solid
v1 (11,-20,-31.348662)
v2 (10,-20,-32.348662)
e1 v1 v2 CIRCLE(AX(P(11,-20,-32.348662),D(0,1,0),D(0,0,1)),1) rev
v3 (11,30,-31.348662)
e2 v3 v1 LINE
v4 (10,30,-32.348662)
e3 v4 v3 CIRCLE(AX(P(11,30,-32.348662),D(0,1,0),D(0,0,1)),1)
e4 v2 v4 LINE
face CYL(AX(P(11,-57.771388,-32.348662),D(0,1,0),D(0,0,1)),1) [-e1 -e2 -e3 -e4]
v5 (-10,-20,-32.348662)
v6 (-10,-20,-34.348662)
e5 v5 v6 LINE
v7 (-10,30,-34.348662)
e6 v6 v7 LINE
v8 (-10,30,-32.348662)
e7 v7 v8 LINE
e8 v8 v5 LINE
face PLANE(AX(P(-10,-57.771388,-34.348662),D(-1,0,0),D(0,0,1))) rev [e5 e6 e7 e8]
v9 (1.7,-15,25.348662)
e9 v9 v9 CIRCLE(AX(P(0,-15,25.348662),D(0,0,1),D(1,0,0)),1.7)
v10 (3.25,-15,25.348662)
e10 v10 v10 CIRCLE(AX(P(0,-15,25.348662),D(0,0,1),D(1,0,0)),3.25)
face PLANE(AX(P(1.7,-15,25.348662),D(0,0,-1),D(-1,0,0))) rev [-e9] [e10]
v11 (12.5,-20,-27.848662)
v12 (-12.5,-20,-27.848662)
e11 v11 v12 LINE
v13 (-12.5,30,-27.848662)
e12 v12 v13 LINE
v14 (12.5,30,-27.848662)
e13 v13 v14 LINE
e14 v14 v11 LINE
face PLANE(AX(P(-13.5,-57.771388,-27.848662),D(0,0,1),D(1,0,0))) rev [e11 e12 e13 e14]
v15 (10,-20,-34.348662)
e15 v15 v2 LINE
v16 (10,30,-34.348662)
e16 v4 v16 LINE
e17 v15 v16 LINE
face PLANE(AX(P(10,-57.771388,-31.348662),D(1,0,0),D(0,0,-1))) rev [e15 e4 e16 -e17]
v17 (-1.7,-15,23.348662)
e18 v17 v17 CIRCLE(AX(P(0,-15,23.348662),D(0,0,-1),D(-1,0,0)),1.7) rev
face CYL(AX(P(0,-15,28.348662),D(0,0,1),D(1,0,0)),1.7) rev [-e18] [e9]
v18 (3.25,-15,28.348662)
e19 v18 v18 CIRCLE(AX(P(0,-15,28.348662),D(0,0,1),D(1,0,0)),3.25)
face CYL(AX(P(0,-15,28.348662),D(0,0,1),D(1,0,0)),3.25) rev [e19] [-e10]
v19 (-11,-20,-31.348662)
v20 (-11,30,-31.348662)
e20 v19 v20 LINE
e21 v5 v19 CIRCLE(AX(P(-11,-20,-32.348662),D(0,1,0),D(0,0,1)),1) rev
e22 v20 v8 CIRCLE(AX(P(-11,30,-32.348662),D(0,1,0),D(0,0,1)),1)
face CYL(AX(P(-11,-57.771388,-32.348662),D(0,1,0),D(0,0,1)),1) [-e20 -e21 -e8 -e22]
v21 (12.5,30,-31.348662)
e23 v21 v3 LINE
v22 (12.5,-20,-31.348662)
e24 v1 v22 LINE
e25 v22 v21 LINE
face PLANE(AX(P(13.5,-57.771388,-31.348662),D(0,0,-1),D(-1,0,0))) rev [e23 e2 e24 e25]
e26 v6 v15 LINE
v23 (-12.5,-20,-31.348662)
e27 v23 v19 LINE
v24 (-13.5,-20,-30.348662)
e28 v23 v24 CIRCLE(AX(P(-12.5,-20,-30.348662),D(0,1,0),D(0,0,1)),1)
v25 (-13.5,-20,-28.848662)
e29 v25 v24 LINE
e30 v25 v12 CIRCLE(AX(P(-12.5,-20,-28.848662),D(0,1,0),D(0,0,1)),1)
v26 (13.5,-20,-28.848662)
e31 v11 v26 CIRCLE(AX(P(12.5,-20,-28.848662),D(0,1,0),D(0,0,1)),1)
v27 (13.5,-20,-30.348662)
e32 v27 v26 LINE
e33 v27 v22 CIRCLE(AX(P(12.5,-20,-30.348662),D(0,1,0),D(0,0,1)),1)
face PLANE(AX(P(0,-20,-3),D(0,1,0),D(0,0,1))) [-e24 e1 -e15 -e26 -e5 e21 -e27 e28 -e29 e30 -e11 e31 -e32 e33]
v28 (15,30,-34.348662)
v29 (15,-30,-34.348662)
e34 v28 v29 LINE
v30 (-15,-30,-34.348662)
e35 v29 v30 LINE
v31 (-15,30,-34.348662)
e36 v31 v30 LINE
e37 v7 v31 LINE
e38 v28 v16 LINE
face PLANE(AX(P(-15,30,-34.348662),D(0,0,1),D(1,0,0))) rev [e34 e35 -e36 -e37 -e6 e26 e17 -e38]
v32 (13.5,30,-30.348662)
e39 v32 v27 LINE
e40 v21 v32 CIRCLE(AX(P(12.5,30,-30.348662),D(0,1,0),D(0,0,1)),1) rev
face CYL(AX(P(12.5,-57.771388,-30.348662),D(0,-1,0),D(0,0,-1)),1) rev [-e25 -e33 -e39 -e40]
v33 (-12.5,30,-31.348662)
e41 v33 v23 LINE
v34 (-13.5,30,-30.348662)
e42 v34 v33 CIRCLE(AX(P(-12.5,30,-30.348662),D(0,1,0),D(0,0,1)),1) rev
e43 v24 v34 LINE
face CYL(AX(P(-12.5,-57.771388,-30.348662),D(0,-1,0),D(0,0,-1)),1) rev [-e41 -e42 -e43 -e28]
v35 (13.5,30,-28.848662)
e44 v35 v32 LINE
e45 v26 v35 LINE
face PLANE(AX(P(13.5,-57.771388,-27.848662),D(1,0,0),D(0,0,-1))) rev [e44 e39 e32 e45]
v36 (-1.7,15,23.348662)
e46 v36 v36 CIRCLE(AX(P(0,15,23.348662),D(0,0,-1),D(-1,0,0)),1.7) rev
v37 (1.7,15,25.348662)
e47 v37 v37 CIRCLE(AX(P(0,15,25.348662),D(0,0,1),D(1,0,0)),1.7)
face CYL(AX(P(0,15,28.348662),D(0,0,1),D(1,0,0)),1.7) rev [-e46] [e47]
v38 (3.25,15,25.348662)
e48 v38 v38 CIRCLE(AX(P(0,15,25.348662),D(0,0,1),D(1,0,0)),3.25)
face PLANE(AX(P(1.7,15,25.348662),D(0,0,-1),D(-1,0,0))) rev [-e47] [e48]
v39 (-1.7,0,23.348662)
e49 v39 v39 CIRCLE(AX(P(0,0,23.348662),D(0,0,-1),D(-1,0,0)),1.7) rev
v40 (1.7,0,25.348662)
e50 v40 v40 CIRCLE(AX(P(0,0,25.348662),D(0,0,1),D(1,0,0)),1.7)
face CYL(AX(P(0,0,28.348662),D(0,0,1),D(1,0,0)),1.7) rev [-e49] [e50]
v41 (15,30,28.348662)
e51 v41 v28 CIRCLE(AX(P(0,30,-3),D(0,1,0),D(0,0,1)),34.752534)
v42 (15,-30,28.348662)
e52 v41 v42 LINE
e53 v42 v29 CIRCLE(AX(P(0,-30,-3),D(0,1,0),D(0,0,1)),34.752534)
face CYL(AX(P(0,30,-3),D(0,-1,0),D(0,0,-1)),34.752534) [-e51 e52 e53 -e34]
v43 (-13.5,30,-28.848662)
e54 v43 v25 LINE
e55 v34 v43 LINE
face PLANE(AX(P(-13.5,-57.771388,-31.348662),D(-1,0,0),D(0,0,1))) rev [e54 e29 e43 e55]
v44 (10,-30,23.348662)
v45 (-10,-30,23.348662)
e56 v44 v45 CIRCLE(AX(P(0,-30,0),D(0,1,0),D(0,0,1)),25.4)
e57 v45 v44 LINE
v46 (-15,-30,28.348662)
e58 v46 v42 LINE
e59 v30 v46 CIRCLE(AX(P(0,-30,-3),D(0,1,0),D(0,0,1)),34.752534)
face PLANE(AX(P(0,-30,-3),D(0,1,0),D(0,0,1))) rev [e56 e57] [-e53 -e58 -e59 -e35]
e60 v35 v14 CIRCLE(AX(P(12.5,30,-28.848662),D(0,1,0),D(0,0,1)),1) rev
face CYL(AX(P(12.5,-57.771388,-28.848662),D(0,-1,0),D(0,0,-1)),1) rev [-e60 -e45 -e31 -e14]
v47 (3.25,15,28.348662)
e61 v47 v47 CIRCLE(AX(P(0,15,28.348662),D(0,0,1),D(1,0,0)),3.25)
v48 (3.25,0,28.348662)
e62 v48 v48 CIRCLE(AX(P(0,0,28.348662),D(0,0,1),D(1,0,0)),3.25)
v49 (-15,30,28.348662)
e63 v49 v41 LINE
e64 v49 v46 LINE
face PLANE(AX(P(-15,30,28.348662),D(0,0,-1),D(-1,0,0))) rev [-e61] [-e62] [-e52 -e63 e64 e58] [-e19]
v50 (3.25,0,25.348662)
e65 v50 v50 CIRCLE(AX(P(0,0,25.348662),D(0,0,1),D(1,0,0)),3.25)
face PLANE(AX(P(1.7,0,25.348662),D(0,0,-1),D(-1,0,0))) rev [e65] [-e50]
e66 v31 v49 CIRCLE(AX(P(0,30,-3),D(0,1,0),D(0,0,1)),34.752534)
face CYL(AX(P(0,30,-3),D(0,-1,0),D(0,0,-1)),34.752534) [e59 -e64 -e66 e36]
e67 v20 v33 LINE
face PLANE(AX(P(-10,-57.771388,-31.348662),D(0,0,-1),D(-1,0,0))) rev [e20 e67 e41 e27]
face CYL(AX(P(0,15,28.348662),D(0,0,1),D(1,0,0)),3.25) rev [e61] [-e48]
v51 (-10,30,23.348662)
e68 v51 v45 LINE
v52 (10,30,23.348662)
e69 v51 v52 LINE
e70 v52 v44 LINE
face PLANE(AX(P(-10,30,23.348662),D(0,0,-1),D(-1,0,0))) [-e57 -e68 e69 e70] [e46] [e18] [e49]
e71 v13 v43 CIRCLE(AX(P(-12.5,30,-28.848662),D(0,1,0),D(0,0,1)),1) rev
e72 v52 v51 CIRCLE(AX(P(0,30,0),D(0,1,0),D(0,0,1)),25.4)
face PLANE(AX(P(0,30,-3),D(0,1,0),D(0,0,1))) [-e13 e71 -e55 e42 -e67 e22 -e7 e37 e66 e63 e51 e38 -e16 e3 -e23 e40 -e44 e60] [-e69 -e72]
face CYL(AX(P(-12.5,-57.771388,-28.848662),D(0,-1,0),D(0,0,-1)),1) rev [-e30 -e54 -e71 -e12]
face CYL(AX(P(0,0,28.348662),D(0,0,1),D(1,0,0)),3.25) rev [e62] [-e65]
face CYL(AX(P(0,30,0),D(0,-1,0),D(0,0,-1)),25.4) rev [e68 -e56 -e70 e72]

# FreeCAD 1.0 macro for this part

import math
import FreeCAD as App
import Part
import Sketcher
from FreeCAD import Vector
Q = App.Units.Quantity


def edges_at(feature, points):
    """Names of the edges that pass closest to the given points."""
    edges = feature.Shape.Edges
    near = lambda p: min(range(len(edges)), key=lambda i: edges[i].distToShape(Part.Vertex(*p))[0])
    return sorted({f"Edge{near(p) + 1}" for p in points})

doc = App.newDocument("Part")
body = doc.addObject("PartDesign::Body", "Body")

sketch1 = body.newObject("Sketcher::SketchObject", "Sketch")
sketch1.AttachmentSupport = (doc.getObject("XZ_Plane"), [""])
sketch1.MapMode = "FlatFace"
sketch1.addGeometry(Part.LineSegment(Vector(-15, 28, 0), Vector(15, 28, 0)), False)
sketch1.addGeometry(Part.ArcOfCircle(Part.Circle(Vector(0, -3, 0), Vector(0, 0, 1), 35), math.radians(-64), math.radians(64)), False)
sketch1.addGeometry(Part.LineSegment(Vector(15, -34, 0), Vector(-15, -34, 0)), False)
sketch1.addGeometry(Part.ArcOfCircle(Part.Circle(Vector(0, -3, 0), Vector(0, 0, 1), 35), math.radians(116), math.radians(244)), False)
sketch1.addGeometry(Part.LineSegment(Vector(10, 23, 0), Vector(-10, 23, 0)), False)
sketch1.addGeometry(Part.ArcOfCircle(Part.Circle(Vector(0, 0, 0), Vector(0, 0, 1), 25), math.radians(113), math.radians(427)), False)
sketch1.addConstraint(Sketcher.Constraint("Coincident", 0, 2, 1, 2))
sketch1.addConstraint(Sketcher.Constraint("Coincident", 1, 1, 2, 1))
sketch1.addConstraint(Sketcher.Constraint("Coincident", 2, 2, 3, 2))
sketch1.addConstraint(Sketcher.Constraint("Coincident", 3, 1, 0, 1))
sketch1.addConstraint(Sketcher.Constraint("Coincident", 4, 1, 5, 2))
sketch1.addConstraint(Sketcher.Constraint("Coincident", 5, 1, 4, 2))
sketch1.addConstraint(Sketcher.Constraint("Horizontal", 0))
sketch1.addConstraint(Sketcher.Constraint("Horizontal", 2))
sketch1.addConstraint(Sketcher.Constraint("Horizontal", 4))
sketch1.addConstraint(Sketcher.Constraint("Coincident", 5, 3, -1, 1))
sketch1.addConstraint(Sketcher.Constraint("Coincident", 3, 3, 1, 3))
sketch1.addConstraint(Sketcher.Constraint("Equal", 1, 3))
sketch1.addConstraint(Sketcher.Constraint("PointOnObject", 1, 3, -2))
sketch1.addConstraint(Sketcher.Constraint("Vertical", 0, 2, 1, 1))
sketch1.addConstraint(Sketcher.Constraint("Radius", 5, Q("25.4 mm")))
sketch1.addConstraint(Sketcher.Constraint("DistanceX", 0, 1, 0, 2, Q("30 mm")))
sketch1.addConstraint(Sketcher.Constraint("DistanceX", 4, 2, 4, 1, Q("20 mm")))
sketch1.addConstraint(Sketcher.Constraint("DistanceY", 1, 3, -1, 1, Q("3 mm")))
sketch1.addConstraint(Sketcher.Constraint("DistanceY", 4, 1, 0, 2, Q("5 mm")))
pad1 = body.newObject("PartDesign::Pad", "Pad")
pad1.Profile = sketch1
pad1.Length = 60
pad1.Midplane = True

sketch2 = body.newObject("Sketcher::SketchObject", "Sketch001")
sketch2.AttachmentSupport = (doc.getObject("XZ_Plane"), [""])
sketch2.MapMode = "FlatFace"
sketch2.AttachmentOffset = App.Placement(Vector(0, 0, -30), App.Rotation())
sketch2.addGeometry(Part.LineSegment(Vector(-10, -34.3, 0), Vector(-10, -31.3, 0)), False)
sketch2.addGeometry(Part.LineSegment(Vector(-10, -31.3, 0), Vector(-13.5, -31.3, 0)), False)
sketch2.addGeometry(Part.LineSegment(Vector(-13.5, -31.3, 0), Vector(-13.5, -27.8, 0)), False)
sketch2.addGeometry(Part.LineSegment(Vector(-13.5, -27.8, 0), Vector(13.5, -27.8, 0)), False)
sketch2.addGeometry(Part.LineSegment(Vector(13.5, -27.8, 0), Vector(13.5, -31.3, 0)), False)
sketch2.addGeometry(Part.LineSegment(Vector(13.5, -31.3, 0), Vector(10, -31.3, 0)), False)
sketch2.addGeometry(Part.LineSegment(Vector(10, -31.3, 0), Vector(10, -34.3, 0)), False)
sketch2.addGeometry(Part.LineSegment(Vector(10, -34.3, 0), Vector(-10, -34.3, 0)), False)
sketch2.addConstraint(Sketcher.Constraint("Coincident", 0, 2, 1, 1))
sketch2.addConstraint(Sketcher.Constraint("Coincident", 1, 2, 2, 1))
sketch2.addConstraint(Sketcher.Constraint("Coincident", 2, 2, 3, 1))
sketch2.addConstraint(Sketcher.Constraint("Coincident", 3, 2, 4, 1))
sketch2.addConstraint(Sketcher.Constraint("Coincident", 4, 2, 5, 1))
sketch2.addConstraint(Sketcher.Constraint("Coincident", 5, 2, 6, 1))
sketch2.addConstraint(Sketcher.Constraint("Coincident", 6, 2, 7, 1))
sketch2.addConstraint(Sketcher.Constraint("Coincident", 7, 2, 0, 1))
sketch2.addConstraint(Sketcher.Constraint("Vertical", 0))
sketch2.addConstraint(Sketcher.Constraint("Horizontal", 1))
sketch2.addConstraint(Sketcher.Constraint("Vertical", 2))
sketch2.addConstraint(Sketcher.Constraint("Horizontal", 3))
sketch2.addConstraint(Sketcher.Constraint("Vertical", 4))
sketch2.addConstraint(Sketcher.Constraint("Horizontal", 5))
sketch2.addConstraint(Sketcher.Constraint("Vertical", 6))
sketch2.addConstraint(Sketcher.Constraint("Horizontal", 7))
sketch2.addConstraint(Sketcher.Constraint("Symmetric", 1, 2, 4, 2, -2))
sketch2.addConstraint(Sketcher.Constraint("Equal", 1, 5))
sketch2.addConstraint(Sketcher.Constraint("Equal", 5, 2))
sketch2.addConstraint(Sketcher.Constraint("DistanceX", 3, 1, 3, 2, Q("27 mm")))
sketch2.addConstraint(Sketcher.Constraint("DistanceX", 7, 2, 7, 1, Q("20 mm")))
sketch2.addConstraint(Sketcher.Constraint("DistanceY", 0, 1, 0, 2, Q("3 mm")))
sketch2.addConstraint(Sketcher.Constraint("DistanceY", 0, 2, -1, 1, Q("31.348662 mm")))
pocket1 = body.newObject("PartDesign::Pocket", "Pocket")
pocket1.Profile = sketch2
pocket1.Length = 50
pocket1.Reversed = True
doc.recompute()

fillet = body.newObject("PartDesign::Fillet", "Fillet")
fillet.Base = (pocket1, edges_at(pocket1, [
    (10, 5, -31.349),
    (13.5, 5, -31.349),
    (13.5, 5, -27.849),
    (-13.5, 5, -27.849),
    (-13.5, 5, -31.349),
    (-10, 5, -31.349),
]))
fillet.Radius = 1

sketch3 = body.newObject("Sketcher::SketchObject", "Sketch002")
sketch3.AttachmentSupport = (doc.getObject("XY_Plane"), [""])
sketch3.MapMode = "FlatFace"
sketch3.AttachmentOffset = App.Placement(Vector(0, 0, 28.348662), App.Rotation())
sketch3.addGeometry(Part.Circle(Vector(0, 0, 0), Vector(0, 0, 1), 1.7), False)
sketch3.addGeometry(Part.Circle(Vector(0, 15, 0), Vector(0, 0, 1), 1.7), False)
sketch3.addGeometry(Part.Circle(Vector(0, -15, 0), Vector(0, 0, 1), 1.7), False)
sketch3.addConstraint(Sketcher.Constraint("Coincident", 0, 3, -1, 1))
sketch3.addConstraint(Sketcher.Constraint("Equal", 0, 1))
sketch3.addConstraint(Sketcher.Constraint("Equal", 1, 2))
sketch3.addConstraint(Sketcher.Constraint("Symmetric", 1, 3, 2, 3, -1, 1))
sketch3.addConstraint(Sketcher.Constraint("PointOnObject", 1, 3, -2))
sketch3.addConstraint(Sketcher.Constraint("Diameter", 0, Q("3.4 mm")))
sketch3.addConstraint(Sketcher.Constraint("DistanceY", -1, 1, 1, 3, Q("15 mm")))
doc.recompute()
hole = body.newObject("PartDesign::Hole", "Hole")
hole.Profile = sketch3
hole.ThreadType = "None"
hole.Diameter = 3.4
hole.DepthType = "Dimension"
hole.Depth = 5
hole.DrillPoint = "Angled"
hole.DrillPointAngle = 118
hole.HoleCutType = "Counterbore"
hole.HoleCutDiameter = 6.5
hole.HoleCutDepth = 3

doc.recompute()
